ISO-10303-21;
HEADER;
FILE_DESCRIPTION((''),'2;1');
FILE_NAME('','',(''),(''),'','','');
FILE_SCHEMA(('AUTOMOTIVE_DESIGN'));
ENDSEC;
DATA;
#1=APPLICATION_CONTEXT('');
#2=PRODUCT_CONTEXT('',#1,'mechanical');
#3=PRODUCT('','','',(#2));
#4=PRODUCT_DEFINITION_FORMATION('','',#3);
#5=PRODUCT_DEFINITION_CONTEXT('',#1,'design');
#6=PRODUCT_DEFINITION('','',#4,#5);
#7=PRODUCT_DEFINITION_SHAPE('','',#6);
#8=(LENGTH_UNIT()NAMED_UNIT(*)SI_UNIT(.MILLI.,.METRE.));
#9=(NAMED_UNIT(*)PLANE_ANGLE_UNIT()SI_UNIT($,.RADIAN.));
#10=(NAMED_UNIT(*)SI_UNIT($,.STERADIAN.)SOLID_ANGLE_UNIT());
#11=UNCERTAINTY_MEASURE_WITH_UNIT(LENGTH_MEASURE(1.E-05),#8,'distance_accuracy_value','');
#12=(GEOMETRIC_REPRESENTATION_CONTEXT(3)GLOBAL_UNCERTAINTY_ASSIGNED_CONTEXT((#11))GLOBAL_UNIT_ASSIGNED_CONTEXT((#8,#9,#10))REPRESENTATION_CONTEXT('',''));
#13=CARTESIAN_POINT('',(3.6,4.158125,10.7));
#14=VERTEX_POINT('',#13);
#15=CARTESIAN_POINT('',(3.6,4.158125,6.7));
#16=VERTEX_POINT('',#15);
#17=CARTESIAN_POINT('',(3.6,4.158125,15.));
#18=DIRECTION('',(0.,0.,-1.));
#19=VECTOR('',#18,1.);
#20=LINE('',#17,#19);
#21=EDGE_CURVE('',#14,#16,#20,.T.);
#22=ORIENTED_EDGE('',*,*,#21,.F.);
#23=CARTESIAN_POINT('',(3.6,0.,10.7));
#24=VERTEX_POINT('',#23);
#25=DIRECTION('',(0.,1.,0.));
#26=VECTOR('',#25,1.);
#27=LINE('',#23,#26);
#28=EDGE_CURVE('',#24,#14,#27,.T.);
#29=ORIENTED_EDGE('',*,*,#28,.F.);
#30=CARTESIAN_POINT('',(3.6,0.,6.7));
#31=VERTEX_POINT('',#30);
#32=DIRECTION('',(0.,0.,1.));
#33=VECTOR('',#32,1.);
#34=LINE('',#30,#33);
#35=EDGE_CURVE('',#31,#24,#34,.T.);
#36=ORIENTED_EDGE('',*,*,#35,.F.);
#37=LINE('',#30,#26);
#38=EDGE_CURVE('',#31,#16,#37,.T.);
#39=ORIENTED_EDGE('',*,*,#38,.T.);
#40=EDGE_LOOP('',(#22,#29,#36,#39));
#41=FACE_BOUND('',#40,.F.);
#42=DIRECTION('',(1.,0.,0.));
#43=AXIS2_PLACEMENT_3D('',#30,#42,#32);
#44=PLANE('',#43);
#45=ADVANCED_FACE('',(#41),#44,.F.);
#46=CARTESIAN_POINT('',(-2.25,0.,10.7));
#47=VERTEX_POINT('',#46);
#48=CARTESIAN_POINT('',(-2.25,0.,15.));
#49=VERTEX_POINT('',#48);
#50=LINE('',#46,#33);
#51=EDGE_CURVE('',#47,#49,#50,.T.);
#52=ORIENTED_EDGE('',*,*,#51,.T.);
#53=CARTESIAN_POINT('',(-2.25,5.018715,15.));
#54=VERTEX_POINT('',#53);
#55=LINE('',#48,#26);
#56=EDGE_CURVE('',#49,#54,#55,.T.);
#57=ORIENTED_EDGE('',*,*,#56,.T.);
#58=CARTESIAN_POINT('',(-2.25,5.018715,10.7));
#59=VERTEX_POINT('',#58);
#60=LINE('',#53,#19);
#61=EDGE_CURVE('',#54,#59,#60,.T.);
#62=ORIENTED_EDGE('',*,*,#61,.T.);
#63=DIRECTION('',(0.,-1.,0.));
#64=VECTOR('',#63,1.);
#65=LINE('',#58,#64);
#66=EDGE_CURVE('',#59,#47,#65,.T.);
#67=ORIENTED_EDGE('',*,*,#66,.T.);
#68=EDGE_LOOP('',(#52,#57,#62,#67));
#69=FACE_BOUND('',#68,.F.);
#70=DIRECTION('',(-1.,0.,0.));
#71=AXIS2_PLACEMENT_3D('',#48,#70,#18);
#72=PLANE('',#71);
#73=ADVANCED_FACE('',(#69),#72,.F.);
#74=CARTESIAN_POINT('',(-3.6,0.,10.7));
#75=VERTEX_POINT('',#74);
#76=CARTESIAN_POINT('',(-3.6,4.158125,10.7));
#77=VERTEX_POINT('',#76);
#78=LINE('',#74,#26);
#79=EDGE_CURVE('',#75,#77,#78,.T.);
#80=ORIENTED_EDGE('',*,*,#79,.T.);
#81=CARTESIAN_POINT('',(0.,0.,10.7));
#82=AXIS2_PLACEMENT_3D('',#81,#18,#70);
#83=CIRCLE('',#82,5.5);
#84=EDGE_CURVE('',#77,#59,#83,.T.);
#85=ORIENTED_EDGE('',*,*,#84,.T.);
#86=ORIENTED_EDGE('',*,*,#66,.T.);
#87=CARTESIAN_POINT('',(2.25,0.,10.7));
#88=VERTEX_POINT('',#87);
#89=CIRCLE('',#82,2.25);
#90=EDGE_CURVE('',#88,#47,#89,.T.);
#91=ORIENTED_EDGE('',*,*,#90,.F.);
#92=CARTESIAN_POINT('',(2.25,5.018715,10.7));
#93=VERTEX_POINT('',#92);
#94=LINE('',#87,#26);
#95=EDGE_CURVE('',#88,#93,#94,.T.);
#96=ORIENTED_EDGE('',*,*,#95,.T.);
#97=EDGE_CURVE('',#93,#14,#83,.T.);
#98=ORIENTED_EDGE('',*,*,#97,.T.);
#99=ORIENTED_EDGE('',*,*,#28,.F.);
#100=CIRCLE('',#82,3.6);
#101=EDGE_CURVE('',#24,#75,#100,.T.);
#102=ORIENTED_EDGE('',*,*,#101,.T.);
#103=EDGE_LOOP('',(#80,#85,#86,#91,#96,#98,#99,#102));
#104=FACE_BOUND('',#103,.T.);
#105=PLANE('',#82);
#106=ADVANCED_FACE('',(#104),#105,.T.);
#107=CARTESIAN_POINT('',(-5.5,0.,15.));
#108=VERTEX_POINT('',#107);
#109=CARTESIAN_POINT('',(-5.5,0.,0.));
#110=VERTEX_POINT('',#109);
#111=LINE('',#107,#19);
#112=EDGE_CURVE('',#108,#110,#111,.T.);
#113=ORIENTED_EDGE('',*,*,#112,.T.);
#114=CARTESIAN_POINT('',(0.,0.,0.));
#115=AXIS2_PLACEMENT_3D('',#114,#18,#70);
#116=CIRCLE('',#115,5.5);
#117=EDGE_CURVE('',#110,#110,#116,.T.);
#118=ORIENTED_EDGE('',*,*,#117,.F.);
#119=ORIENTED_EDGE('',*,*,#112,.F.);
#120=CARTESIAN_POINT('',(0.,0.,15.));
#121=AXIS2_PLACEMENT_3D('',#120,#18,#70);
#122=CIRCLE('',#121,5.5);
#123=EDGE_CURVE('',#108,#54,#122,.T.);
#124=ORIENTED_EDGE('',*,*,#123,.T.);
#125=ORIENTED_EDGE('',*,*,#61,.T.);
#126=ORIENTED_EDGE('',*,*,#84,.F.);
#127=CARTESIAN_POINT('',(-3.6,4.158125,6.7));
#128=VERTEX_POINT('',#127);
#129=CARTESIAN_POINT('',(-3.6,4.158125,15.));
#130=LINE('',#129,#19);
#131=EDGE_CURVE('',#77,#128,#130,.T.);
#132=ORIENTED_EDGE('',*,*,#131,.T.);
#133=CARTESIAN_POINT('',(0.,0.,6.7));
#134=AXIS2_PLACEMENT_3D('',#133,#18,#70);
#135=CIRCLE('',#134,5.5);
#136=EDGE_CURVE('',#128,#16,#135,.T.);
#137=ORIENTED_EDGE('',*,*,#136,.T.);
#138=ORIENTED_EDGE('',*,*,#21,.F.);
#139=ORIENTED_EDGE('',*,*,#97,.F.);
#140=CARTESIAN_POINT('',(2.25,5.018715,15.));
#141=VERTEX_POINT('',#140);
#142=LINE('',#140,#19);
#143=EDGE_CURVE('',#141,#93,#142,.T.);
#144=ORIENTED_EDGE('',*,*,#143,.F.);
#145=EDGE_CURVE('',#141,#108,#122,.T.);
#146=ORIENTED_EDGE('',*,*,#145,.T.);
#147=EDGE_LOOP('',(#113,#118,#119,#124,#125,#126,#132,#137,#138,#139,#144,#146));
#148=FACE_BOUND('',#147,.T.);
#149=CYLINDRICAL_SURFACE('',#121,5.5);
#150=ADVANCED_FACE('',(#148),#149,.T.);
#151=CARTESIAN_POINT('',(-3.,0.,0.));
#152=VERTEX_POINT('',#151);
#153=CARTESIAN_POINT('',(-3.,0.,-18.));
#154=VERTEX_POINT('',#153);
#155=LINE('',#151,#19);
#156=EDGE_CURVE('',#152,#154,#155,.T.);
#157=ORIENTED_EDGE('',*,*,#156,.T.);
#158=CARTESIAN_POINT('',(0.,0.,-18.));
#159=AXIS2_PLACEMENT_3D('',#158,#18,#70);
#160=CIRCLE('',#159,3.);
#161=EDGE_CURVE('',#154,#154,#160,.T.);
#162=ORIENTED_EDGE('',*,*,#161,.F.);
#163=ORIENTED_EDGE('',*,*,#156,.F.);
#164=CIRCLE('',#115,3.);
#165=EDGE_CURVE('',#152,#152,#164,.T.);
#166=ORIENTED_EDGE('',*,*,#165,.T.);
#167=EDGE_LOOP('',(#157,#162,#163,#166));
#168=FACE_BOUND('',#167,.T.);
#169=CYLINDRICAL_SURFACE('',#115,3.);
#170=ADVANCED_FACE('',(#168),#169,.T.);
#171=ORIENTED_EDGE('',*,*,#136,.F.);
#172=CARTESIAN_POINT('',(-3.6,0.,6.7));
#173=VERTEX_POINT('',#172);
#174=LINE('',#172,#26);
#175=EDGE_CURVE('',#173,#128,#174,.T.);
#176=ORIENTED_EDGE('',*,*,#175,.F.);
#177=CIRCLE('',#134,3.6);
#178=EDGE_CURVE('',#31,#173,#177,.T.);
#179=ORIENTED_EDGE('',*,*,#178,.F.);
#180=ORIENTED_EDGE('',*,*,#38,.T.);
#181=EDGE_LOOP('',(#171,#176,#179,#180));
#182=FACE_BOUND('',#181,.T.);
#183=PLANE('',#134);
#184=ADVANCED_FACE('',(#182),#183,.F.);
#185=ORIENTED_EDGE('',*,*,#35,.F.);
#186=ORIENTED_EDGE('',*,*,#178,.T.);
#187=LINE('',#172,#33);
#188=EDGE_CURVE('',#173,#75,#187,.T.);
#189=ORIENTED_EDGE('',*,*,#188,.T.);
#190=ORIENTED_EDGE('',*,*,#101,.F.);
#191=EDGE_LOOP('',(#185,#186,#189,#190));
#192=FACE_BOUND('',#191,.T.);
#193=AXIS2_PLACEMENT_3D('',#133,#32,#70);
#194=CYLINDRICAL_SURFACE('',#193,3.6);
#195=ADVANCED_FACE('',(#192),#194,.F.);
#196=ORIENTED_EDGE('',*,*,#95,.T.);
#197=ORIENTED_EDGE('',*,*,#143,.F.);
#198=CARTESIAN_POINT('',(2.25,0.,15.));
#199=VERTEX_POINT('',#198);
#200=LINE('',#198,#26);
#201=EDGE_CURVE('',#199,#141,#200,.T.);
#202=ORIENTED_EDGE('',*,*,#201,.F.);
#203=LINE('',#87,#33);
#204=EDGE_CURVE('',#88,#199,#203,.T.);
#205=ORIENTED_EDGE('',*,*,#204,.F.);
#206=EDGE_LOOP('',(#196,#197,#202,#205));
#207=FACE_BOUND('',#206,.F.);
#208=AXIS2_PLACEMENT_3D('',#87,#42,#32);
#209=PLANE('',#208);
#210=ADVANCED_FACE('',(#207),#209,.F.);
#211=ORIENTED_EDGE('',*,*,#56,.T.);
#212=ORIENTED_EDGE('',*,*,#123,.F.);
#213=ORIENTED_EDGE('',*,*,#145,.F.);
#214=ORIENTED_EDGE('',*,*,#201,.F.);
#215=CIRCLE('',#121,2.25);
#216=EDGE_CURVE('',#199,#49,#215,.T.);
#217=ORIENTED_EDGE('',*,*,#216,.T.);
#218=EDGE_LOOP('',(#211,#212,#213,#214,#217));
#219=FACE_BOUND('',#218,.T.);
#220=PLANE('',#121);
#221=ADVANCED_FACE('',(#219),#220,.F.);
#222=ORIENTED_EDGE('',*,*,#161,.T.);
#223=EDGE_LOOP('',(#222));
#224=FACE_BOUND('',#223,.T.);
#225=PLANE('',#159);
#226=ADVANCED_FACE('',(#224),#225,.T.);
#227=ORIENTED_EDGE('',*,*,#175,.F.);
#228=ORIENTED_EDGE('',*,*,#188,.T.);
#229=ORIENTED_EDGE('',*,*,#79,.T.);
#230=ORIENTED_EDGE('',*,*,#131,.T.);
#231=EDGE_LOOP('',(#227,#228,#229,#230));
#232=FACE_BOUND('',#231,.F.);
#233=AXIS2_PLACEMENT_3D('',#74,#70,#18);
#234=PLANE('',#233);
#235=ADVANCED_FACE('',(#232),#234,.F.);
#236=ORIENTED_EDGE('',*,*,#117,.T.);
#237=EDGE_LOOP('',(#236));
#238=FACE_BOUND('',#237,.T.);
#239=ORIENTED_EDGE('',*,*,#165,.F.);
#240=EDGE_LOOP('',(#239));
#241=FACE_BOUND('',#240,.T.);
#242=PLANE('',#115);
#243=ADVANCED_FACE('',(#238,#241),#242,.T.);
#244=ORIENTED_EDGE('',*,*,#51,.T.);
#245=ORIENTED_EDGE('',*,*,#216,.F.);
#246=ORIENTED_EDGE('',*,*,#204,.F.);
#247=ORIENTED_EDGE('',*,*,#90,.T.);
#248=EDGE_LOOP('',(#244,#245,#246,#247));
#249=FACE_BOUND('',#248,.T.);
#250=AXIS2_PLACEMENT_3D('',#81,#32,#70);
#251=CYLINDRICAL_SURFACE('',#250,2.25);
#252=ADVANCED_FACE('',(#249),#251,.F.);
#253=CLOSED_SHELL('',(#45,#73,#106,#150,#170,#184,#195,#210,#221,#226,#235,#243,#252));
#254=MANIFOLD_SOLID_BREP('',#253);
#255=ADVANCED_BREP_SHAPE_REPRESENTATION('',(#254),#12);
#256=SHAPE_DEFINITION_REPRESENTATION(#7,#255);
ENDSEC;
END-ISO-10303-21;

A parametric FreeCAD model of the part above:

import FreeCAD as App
import Part
import Sketcher

V = App.Vector

doc = App.newDocument("Part")
params = doc.addObject("Spreadsheet::Sheet", "Params")
for row, (alias, value) in enumerate([
    ("sketch1_width", "3 mm"),
    ("sketch1_height", "4 mm"),
    ("sketch1_height2", "15 mm"),
    ("sketch1_height3", "18 mm"),
    ("sketch1_width2", "3.6 mm"),
    ("revolution_angle", "360 deg"),
    ("sketch2_height", "4 mm"),
    ("sketch2_width", "4.5 mm"),
    ("sketch2_width2", "7.2 mm"),
    ("sketch2_height2", "4.3 mm"),
    ("pocket1_length", "6 mm"),
], start=1):
    params.set(f"A{row}", alias)
    params.set(f"B{row}", "=" + value)
    params.setAlias(f"B{row}", alias)

body = doc.addObject("PartDesign::Body", "Body")

sketch1 = body.newObject("Sketcher::SketchObject", "Sketch")
sketch1.AttachmentSupport = (doc.getObject("XZ_Plane"), [""])
sketch1.MapMode = "FlatFace"
sketch1.addGeometry([
    Part.LineSegment(V(0, -18, 0), V(0, 6.7, 0)),
    Part.LineSegment(V(0, 6.7, 0), V(-3.6, 6.7, 0)),
    Part.LineSegment(V(-3.6, 6.7, 0), V(-3.6, 10.7, 0)),
    Part.LineSegment(V(-3.6, 10.7, 0), V(-2.2, 10.7, 0)),
    Part.LineSegment(V(-2.2, 10.7, 0), V(-2.2, 15, 0)),
    Part.LineSegment(V(-2.2, 15, 0), V(-5.5, 15, 0)),
    Part.LineSegment(V(-5.5, 15, 0), V(-5.5, 0, 0)),
    Part.LineSegment(V(-5.5, 0, 0), V(-3, 0, 0)),
    Part.LineSegment(V(-3, 0, 0), V(-3, -18, 0)),
    Part.LineSegment(V(-3, -18, 0), V(0, -18, 0)),
], False)
sketch1.addConstraint([
    Sketcher.Constraint("Coincident", 0, 2, 1, 1),
    Sketcher.Constraint("Coincident", 1, 2, 2, 1),
    Sketcher.Constraint("Coincident", 2, 2, 3, 1),
    Sketcher.Constraint("Coincident", 3, 2, 4, 1),
    Sketcher.Constraint("Coincident", 4, 2, 5, 1),
    Sketcher.Constraint("Coincident", 5, 2, 6, 1),
    Sketcher.Constraint("Coincident", 6, 2, 7, 1),
    Sketcher.Constraint("Coincident", 7, 2, 8, 1),
    Sketcher.Constraint("Coincident", 8, 2, 9, 1),
    Sketcher.Constraint("Coincident", 9, 2, 0, 1),
    Sketcher.Constraint("Vertical", 0),
    Sketcher.Constraint("Horizontal", 1),
    Sketcher.Constraint("Vertical", 2),
    Sketcher.Constraint("Horizontal", 3),
    Sketcher.Constraint("Vertical", 4),
    Sketcher.Constraint("Horizontal", 5),
    Sketcher.Constraint("Vertical", 6),
    Sketcher.Constraint("Horizontal", 7),
    Sketcher.Constraint("Vertical", 8),
    Sketcher.Constraint("Horizontal", 9),
    Sketcher.Constraint("PointOnObject", 0, 2, -2),
    Sketcher.Constraint("PointOnObject", 6, 2, -1),
    Sketcher.Constraint("DistanceX", 9, 1, 9, 2, 3.0),
    Sketcher.Constraint("DistanceY", 2, 1, 2, 2, 4.0),
    Sketcher.Constraint("DistanceY", 6, 2, 6, 1, 15.0),
    Sketcher.Constraint("DistanceY", 8, 2, 8, 1, 18.0),
    Sketcher.Constraint("DistanceX", 1, 2, 1, 1, 3.6),
    Sketcher.Constraint("DistanceX", 7, 1, 7, 2, 2.5),
    Sketcher.Constraint("DistanceY", 0, 1, 0, 2, 24.7),
    Sketcher.Constraint("DistanceX", 3, 1, 3, 2, 1.35),
])
sketch1.setExpression("Constraints[22]", "Params.sketch1_width")
sketch1.setExpression("Constraints[23]", "Params.sketch1_height")
sketch1.setExpression("Constraints[24]", "Params.sketch1_height2")
sketch1.setExpression("Constraints[25]", "Params.sketch1_height3")
sketch1.setExpression("Constraints[26]", "Params.sketch1_width2")
revolution = body.newObject("PartDesign::Revolution", "Revolution")
revolution.Profile = sketch1
revolution.ReferenceAxis = (sketch1, ["V_Axis"])
revolution.setExpression("Angle", "Params.revolution_angle")

sketch2 = body.newObject("Sketcher::SketchObject", "Sketch001")
sketch2.AttachmentSupport = (doc.getObject("XZ_Plane"), [""])
sketch2.MapMode = "FlatFace"
sketch2.addGeometry([
    Part.LineSegment(V(2.2, 10.7, 0), V(2.2, 15, 0)),
    Part.LineSegment(V(2.2, 15, 0), V(-2.2, 15, 0)),
    Part.LineSegment(V(-2.2, 15, 0), V(-2.2, 10.7, 0)),
    Part.LineSegment(V(-2.2, 10.7, 0), V(-3.6, 10.7, 0)),
    Part.LineSegment(V(-3.6, 10.7, 0), V(-3.6, 6.7, 0)),
    Part.LineSegment(V(-3.6, 6.7, 0), V(3.6, 6.7, 0)),
    Part.LineSegment(V(3.6, 6.7, 0), V(3.6, 10.7, 0)),
    Part.LineSegment(V(3.6, 10.7, 0), V(2.2, 10.7, 0)),
], False)
sketch2.addConstraint([
    Sketcher.Constraint("Coincident", 0, 2, 1, 1),
    Sketcher.Constraint("Coincident", 1, 2, 2, 1),
    Sketcher.Constraint("Coincident", 2, 2, 3, 1),
    Sketcher.Constraint("Coincident", 3, 2, 4, 1),
    Sketcher.Constraint("Coincident", 4, 2, 5, 1),
    Sketcher.Constraint("Coincident", 5, 2, 6, 1),
    Sketcher.Constraint("Coincident", 6, 2, 7, 1),
    Sketcher.Constraint("Coincident", 7, 2, 0, 1),
    Sketcher.Constraint("Vertical", 0),
    Sketcher.Constraint("Horizontal", 1),
    Sketcher.Constraint("Vertical", 2),
    Sketcher.Constraint("Horizontal", 3),
    Sketcher.Constraint("Vertical", 4),
    Sketcher.Constraint("Horizontal", 5),
    Sketcher.Constraint("Vertical", 6),
    Sketcher.Constraint("Horizontal", 7),
    Sketcher.Constraint("Symmetric", 3, 2, 6, 2, -2),
    Sketcher.Constraint("Equal", 3, 7),
    Sketcher.Constraint("DistanceY", 4, 2, 4, 1, 4.0),
    Sketcher.Constraint("DistanceX", 1, 2, 1, 1, 4.5),
    Sketcher.Constraint("DistanceX", 5, 1, 5, 2, 7.2),
    Sketcher.Constraint("DistanceY", 0, 1, 0, 2, 4.3),
    Sketcher.Constraint("DistanceY", -1, 1, 0, 2, 15.0),
])
sketch2.setExpression("Constraints[18]", "Params.sketch2_height")
sketch2.setExpression("Constraints[19]", "Params.sketch2_width")
sketch2.setExpression("Constraints[20]", "Params.sketch2_width2")
sketch2.setExpression("Constraints[21]", "Params.sketch2_height2")
pocket1 = body.newObject("PartDesign::Pocket", "Pocket")
pocket1.Profile = sketch2
pocket1.setExpression("Length", "Params.pocket1_length")

doc.recompute()
